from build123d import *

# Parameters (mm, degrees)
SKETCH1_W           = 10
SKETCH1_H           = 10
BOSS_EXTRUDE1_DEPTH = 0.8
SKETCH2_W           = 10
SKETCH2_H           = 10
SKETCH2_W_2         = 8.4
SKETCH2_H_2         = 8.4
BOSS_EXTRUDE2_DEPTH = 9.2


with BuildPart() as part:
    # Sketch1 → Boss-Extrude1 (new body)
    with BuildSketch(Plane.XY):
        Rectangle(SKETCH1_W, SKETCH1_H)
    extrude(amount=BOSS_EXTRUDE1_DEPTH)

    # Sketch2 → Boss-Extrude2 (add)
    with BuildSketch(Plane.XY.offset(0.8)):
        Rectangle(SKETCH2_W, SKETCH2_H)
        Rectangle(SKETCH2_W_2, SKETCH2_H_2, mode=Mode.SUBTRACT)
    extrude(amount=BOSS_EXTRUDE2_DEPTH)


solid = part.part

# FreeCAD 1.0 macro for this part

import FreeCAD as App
import Part
import Sketcher

V = App.Vector
Q = App.Units.Quantity


def add_polygon(sketch, points):
    """Adds a closed chain of lines whose ends are joined by coincident constraints."""
    first, n = sketch.GeometryCount, len(points)
    for a, b in zip(points, points[1:] + points[:1]):
        sketch.addGeometry(Part.LineSegment(App.Vector(*a, 0), App.Vector(*b, 0)), False)
    for i in range(n):
        sketch.addConstraint(Sketcher.Constraint("Coincident", first + i, 2, first + (i + 1) % n, 1))

doc = App.newDocument("Part")
body = doc.addObject("PartDesign::Body", "Body")

# Sketch on XY plane
sketch1 = doc.addObject("Sketcher::SketchObject", "Sketch")
body.addObject(sketch1)
sketch1.AttachmentSupport = (doc.XY_Plane, [""])
sketch1.MapMode = "FlatFace"
add_polygon(sketch1, [(-5, 5), (-5, -5), (5, -5), (5, 5)])  # lines 0-3
sketch1.addConstraint([
    Sketcher.Constraint("Vertical", 0),
    Sketcher.Constraint("Horizontal", 1),
    Sketcher.Constraint("Vertical", 2),
    Sketcher.Constraint("Horizontal", 3),
    Sketcher.Constraint("Symmetric", 0, 2, 2, 2, -1, 1),
    Sketcher.Constraint("Equal", 3, 0),
    Sketcher.Constraint("DistanceX", 1, 1, 1, 2, Q("10 mm")),
])
pad1 = doc.addObject("PartDesign::Pad", "Pad")
body.addObject(pad1)
pad1.Profile = sketch1
pad1.Length = 0.8

# Sketch on XY plane
sketch2 = doc.addObject("Sketcher::SketchObject", "Sketch001")
body.addObject(sketch2)
sketch2.AttachmentSupport = (doc.XY_Plane, [""])
sketch2.MapMode = "FlatFace"
sketch2.AttachmentOffset = App.Placement(V(0, 0, 0.8), App.Rotation())
add_polygon(sketch2, [(-5, 5), (-5, -5), (5, -5), (5, 5)])  # lines 0-3
add_polygon(sketch2, [(4, -4), (-4, -4), (-4, 4), (4, 4)])  # lines 4-7
sketch2.addConstraint([
    Sketcher.Constraint("Vertical", 0),
    Sketcher.Constraint("Horizontal", 1),
    Sketcher.Constraint("Vertical", 2),
    Sketcher.Constraint("Horizontal", 3),
    Sketcher.Constraint("Horizontal", 4),
    Sketcher.Constraint("Vertical", 5),
    Sketcher.Constraint("Horizontal", 6),
    Sketcher.Constraint("Vertical", 7),
    Sketcher.Constraint("Symmetric", 0, 2, 2, 2, -1, 1),
    Sketcher.Constraint("Symmetric", 4, 2, 6, 2, -1, 1),
    Sketcher.Constraint("Equal", 3, 0),
    Sketcher.Constraint("Equal", 6, 5),
    Sketcher.Constraint("DistanceX", 1, 1, 1, 2, Q("10 mm")),
    Sketcher.Constraint("DistanceX", 4, 2, 4, 1, Q("8.4 mm")),
])
pad2 = doc.addObject("PartDesign::Pad", "Pad001")
body.addObject(pad2)
pad2.Profile = sketch2
pad2.Length = 9.2

doc.recompute()
